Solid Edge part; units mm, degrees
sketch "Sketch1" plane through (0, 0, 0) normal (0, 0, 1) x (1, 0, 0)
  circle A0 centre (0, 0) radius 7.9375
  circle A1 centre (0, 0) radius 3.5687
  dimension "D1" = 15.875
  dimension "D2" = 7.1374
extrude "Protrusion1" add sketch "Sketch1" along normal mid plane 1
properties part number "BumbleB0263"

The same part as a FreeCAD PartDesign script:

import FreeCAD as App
import Part
import Sketcher
from FreeCAD import Vector
Q = App.Units.Quantity

doc = App.newDocument("Part")
body = doc.addObject("PartDesign::Body", "Body")

# Sketch on XY plane
sketch1 = body.newObject("Sketcher::SketchObject", "Sketch")
sketch1.AttachmentSupport = (doc.getObject("XY_Plane"), [""])
sketch1.MapMode = "FlatFace"
sketch1.addGeometry([
    Part.Circle(Vector(0, 0, 0), Vector(0, 0, 1), 7.9375),
    Part.Circle(Vector(0, 0, 0), Vector(0, 0, 1), 3.5687),
], False)
sketch1.addConstraint([
    Sketcher.Constraint("Coincident", 0, 3, -1, 1),
    Sketcher.Constraint("Coincident", 1, 3, -1, 1),
    Sketcher.Constraint("Diameter", 0, Q("0.625 in")),
    Sketcher.Constraint("Diameter", 1, Q("0.281 in")),
])
pad1 = body.newObject("PartDesign::Pad", "Pad")
pad1.Profile = sketch1
pad1.Length = 1
pad1.Midplane = True

doc.recompute()
